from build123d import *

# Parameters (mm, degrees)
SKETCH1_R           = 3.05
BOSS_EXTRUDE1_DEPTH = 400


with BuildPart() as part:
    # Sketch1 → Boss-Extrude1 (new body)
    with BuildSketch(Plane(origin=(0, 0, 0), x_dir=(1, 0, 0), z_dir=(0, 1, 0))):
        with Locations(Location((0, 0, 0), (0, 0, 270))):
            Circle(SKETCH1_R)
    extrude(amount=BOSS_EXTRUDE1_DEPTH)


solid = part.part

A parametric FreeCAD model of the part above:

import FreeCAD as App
import Part
import Sketcher
from FreeCAD import Vector

doc = App.newDocument("Part")
body = doc.addObject("PartDesign::Body", "Body")

# Sketch on XZ plane
sketch1 = body.newObject("Sketcher::SketchObject", "Sketch")
sketch1.AttachmentSupport = (doc.getObject("XZ_Plane"), [""])
sketch1.MapMode = "FlatFace"
sketch1.addGeometry(Part.Circle(Vector(0, 0, 0), Vector(0, 0, 1), 3), False)
sketch1.addConstraint(Sketcher.Constraint("Coincident", 0, 3, -1, 1))
sketch1.addConstraint(Sketcher.Constraint("Diameter", 0, 6.1))
pad1 = body.newObject("PartDesign::Pad", "Pad")
pad1.Profile = sketch1
pad1.Length = 400
pad1.Reversed = True

doc.recompute()
